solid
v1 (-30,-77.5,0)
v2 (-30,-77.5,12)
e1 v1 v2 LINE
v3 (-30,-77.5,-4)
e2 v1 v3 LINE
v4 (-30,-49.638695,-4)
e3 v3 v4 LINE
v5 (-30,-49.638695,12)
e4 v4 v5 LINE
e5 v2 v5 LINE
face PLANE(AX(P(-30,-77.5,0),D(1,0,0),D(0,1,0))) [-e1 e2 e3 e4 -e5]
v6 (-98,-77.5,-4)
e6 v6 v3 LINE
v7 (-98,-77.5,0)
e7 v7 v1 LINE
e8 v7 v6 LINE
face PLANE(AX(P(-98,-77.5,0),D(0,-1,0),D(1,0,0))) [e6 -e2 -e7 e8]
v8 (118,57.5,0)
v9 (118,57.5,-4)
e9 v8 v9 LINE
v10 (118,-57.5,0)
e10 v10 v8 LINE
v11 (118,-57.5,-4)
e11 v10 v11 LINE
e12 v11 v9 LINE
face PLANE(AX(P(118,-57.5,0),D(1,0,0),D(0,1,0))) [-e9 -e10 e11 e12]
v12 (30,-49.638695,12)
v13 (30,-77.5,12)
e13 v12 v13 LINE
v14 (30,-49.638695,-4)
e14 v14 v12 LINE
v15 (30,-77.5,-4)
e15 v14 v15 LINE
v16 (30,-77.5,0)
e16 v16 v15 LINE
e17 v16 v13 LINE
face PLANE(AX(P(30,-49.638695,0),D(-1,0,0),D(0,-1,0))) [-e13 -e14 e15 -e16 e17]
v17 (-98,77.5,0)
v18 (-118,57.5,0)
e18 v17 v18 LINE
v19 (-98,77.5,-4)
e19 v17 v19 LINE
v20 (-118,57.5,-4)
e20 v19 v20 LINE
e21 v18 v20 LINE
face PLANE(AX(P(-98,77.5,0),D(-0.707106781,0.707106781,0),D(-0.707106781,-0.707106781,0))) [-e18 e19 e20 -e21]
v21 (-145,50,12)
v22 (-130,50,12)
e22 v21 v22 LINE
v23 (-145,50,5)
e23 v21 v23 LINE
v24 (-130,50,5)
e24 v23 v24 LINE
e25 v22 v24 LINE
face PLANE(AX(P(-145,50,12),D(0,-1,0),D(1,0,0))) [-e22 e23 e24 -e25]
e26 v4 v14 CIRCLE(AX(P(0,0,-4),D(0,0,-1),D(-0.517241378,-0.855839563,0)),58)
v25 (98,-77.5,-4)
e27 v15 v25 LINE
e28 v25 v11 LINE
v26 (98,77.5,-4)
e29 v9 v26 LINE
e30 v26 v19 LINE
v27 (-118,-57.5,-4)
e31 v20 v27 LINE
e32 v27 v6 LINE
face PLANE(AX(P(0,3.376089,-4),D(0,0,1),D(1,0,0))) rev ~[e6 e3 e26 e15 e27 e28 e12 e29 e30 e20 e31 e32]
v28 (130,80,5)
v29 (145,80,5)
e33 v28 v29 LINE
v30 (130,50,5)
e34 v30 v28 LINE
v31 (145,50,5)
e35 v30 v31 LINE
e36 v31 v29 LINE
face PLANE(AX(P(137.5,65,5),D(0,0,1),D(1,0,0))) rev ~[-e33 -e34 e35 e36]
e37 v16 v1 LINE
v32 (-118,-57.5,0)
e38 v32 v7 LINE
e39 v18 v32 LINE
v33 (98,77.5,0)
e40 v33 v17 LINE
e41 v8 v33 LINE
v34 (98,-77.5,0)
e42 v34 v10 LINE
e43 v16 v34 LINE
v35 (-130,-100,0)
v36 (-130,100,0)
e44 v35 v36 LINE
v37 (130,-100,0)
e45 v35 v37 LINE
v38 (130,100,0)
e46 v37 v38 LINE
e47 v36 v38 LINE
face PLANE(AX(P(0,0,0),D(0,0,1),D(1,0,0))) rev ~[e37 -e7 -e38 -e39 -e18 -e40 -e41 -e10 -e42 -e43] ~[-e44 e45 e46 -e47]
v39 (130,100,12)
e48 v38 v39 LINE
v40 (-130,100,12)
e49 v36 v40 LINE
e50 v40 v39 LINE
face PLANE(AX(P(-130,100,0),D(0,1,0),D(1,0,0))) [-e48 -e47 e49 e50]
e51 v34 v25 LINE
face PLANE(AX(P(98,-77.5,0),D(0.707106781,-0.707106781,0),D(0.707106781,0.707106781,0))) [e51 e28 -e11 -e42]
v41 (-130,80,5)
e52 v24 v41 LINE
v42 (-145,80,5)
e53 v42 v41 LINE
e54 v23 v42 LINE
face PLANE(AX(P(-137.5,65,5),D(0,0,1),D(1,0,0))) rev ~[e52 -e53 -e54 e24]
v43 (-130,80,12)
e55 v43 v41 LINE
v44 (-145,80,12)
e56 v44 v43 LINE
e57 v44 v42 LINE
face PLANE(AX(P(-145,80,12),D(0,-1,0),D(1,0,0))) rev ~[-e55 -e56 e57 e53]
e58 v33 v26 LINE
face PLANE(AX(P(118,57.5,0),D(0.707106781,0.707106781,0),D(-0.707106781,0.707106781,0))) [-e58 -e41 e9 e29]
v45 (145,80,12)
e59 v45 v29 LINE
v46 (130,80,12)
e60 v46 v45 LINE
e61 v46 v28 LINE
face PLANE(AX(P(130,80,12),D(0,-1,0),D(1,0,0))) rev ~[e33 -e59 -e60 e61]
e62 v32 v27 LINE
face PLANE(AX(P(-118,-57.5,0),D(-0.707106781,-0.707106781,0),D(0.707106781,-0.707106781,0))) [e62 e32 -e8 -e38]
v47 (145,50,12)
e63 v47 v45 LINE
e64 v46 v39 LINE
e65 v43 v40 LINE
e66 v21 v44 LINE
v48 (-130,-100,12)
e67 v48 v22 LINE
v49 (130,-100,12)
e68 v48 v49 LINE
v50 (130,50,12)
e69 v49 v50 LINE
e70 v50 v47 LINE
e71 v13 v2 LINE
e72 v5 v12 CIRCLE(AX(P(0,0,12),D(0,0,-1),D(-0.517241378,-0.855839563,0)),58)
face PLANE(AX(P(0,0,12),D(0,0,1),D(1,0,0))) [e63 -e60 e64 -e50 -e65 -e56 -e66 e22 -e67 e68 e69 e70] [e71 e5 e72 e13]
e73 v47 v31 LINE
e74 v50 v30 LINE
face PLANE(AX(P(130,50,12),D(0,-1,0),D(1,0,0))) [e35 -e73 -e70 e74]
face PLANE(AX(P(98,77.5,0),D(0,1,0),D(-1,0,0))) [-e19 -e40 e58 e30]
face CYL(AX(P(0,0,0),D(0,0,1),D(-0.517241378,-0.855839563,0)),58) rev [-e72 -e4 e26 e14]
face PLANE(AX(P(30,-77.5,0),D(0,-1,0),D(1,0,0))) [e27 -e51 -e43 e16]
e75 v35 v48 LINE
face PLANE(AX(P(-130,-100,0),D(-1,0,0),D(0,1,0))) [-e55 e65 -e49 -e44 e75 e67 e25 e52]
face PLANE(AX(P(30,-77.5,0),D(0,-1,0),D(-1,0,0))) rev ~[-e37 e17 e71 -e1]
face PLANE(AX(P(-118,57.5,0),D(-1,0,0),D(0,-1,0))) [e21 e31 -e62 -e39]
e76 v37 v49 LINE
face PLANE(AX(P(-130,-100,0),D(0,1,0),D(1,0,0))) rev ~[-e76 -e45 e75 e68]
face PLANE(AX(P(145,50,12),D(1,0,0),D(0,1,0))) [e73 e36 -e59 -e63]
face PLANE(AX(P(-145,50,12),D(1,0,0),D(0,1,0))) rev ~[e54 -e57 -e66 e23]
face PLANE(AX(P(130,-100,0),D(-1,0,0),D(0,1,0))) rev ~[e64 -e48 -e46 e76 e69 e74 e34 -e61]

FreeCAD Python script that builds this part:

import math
import FreeCAD as App
import Part
import Sketcher
from FreeCAD import Vector


def add_polygon(sketch, points):
    """Adds a closed chain of lines whose ends are joined by coincident constraints."""
    first, n = sketch.GeometryCount, len(points)
    for a, b in zip(points, points[1:] + points[:1]):
        sketch.addGeometry(Part.LineSegment(App.Vector(*a, 0), App.Vector(*b, 0)), False)
    for i in range(n):
        sketch.addConstraint(Sketcher.Constraint("Coincident", first + i, 2, first + (i + 1) % n, 1))

doc = App.newDocument("Part")
body = doc.addObject("PartDesign::Body", "Body")

# Sketch on XY plane
sketch1 = body.newObject("Sketcher::SketchObject", "Sketch")
sketch1.AttachmentSupport = (doc.getObject("XY_Plane"), [""])
sketch1.MapMode = "FlatFace"
add_polygon(sketch1, [(-130, 100), (-130, -100), (130, -100), (130, 100)])  # lines 0-3
sketch1.addGeometry(Part.LineSegment(Vector(30, -77.5, 0), Vector(-30, -77.5, 0)), False)  # 4
sketch1.addGeometry(Part.LineSegment(Vector(-30, -77.5, 0), Vector(-30, -49.638695, 0)), False)  # 5
sketch1.addGeometry(Part.ArcOfCircle(Part.Circle(Vector(0, 0, 0), Vector(0, 0, 1), 58), math.radians(-58.85261), math.radians(238.85261)), False)  # 6
sketch1.addGeometry(Part.LineSegment(Vector(30, -49.638695, 0), Vector(30, -77.5, 0)), False)  # 7
sketch1.addConstraint([
    Sketcher.Constraint("Coincident", 4, 2, 5, 1),
    Sketcher.Constraint("Coincident", 5, 2, 6, 2),
    Sketcher.Constraint("Coincident", 6, 1, 7, 1),
    Sketcher.Constraint("Coincident", 7, 2, 4, 1),
    Sketcher.Constraint("Vertical", 0),
    Sketcher.Constraint("Horizontal", 1),
    Sketcher.Constraint("Vertical", 2),
    Sketcher.Constraint("Horizontal", 3),
    Sketcher.Constraint("Horizontal", 4),
    Sketcher.Constraint("Vertical", 5),
    Sketcher.Constraint("Vertical", 7),
    Sketcher.Constraint("Coincident", 6, 3, -1, 1),
    Sketcher.Constraint("Symmetric", 0, 2, 2, 2, -1, 1),
    Sketcher.Constraint("Horizontal", 5, 2, 6, 1),
    Sketcher.Constraint("Radius", 6, 58.0),
    Sketcher.Constraint("DistanceX", 1, 1, 1, 2, 260.0),
    Sketcher.Constraint("DistanceX", 4, 2, 4, 1, 60.0),
    Sketcher.Constraint("DistanceY", 0, 2, 0, 1, 200.0),
    Sketcher.Constraint("DistanceY", 4, 2, -1, 1, 77.5),
])
pad1 = body.newObject("PartDesign::Pad", "Pad")
pad1.Profile = sketch1
pad1.Length = 12

# Sketch on XY plane
sketch2 = body.newObject("Sketcher::SketchObject", "Sketch001")
sketch2.AttachmentSupport = (doc.getObject("XY_Plane"), [""])
sketch2.MapMode = "FlatFace"
sketch2.addGeometry([
    Part.LineSegment(Vector(118, 57.5, 0), Vector(98, 77.5, 0)),  # 0
    Part.LineSegment(Vector(98, 77.5, 0), Vector(-98, 77.5, 0)),  # 1
    Part.LineSegment(Vector(-98, 77.5, 0), Vector(-118, 57.5, 0)),  # 2
    Part.LineSegment(Vector(-118, 57.5, 0), Vector(-118, -57.5, 0)),  # 3
    Part.LineSegment(Vector(-118, -57.5, 0), Vector(-98, -77.5, 0)),  # 4
    Part.LineSegment(Vector(-98, -77.5, 0), Vector(-30, -77.5, 0)),  # 5
    Part.LineSegment(Vector(-30, -77.5, 0), Vector(-30, -49.638695, 0)),  # 6
    Part.ArcOfCircle(Part.Circle(Vector(0, 0, 0), Vector(0, 0, 1), 58), math.radians(-58.85261), math.radians(238.85261)),  # 7
    Part.LineSegment(Vector(30, -49.638695, 0), Vector(30, -77.5, 0)),  # 8
    Part.LineSegment(Vector(30, -77.5, 0), Vector(98, -77.5, 0)),  # 9
    Part.LineSegment(Vector(98, -77.5, 0), Vector(118, -57.5, 0)),  # 10
    Part.LineSegment(Vector(118, -57.5, 0), Vector(118, 57.5, 0)),  # 11
], False)
sketch2.addConstraint([
    Sketcher.Constraint("Coincident", 0, 2, 1, 1),
    Sketcher.Constraint("Coincident", 1, 2, 2, 1),
    Sketcher.Constraint("Coincident", 2, 2, 3, 1),
    Sketcher.Constraint("Coincident", 3, 2, 4, 1),
    Sketcher.Constraint("Coincident", 4, 2, 5, 1),
    Sketcher.Constraint("Coincident", 5, 2, 6, 1),
    Sketcher.Constraint("Coincident", 6, 2, 7, 2),
    Sketcher.Constraint("Coincident", 7, 1, 8, 1),
    Sketcher.Constraint("Coincident", 8, 2, 9, 1),
    Sketcher.Constraint("Coincident", 9, 2, 10, 1),
    Sketcher.Constraint("Coincident", 10, 2, 11, 1),
    Sketcher.Constraint("Coincident", 11, 2, 0, 1),
    Sketcher.Constraint("Horizontal", 1),
    Sketcher.Constraint("Vertical", 3),
    Sketcher.Constraint("Horizontal", 5),
    Sketcher.Constraint("Vertical", 6),
    Sketcher.Constraint("Vertical", 8),
    Sketcher.Constraint("Horizontal", 9),
    Sketcher.Constraint("Vertical", 11),
    Sketcher.Constraint("Coincident", 7, 3, -1, 1),
    Sketcher.Constraint("Symmetric", 0, 2, 4, 2, -1, 1),
    Sketcher.Constraint("Symmetric", 1, 2, 9, 2, -1, 1),
    Sketcher.Constraint("Symmetric", 2, 2, 10, 2, -1, 1),
    Sketcher.Constraint("Perpendicular", 0, 2),
    Sketcher.Constraint("Perpendicular", 2, 4),
    Sketcher.Constraint("Horizontal", 6, 2, 7, 1),
    Sketcher.Constraint("Horizontal", 3, 2, 10, 2),
    Sketcher.Constraint("Vertical", 1, 2, 4, 2),
    Sketcher.Constraint("Radius", 7, 58.0),
    Sketcher.Constraint("DistanceX", 1, 2, 1, 1, 196.0),
    Sketcher.Constraint("DistanceX", 5, 1, 5, 2, 68.0),
    Sketcher.Constraint("DistanceY", 3, 2, 3, 1, 115.0),
    Sketcher.Constraint("DistanceX", 2, 2, -1, 1, 118.0),
])
pad2 = body.newObject("PartDesign::Pad", "Pad001")
pad2.Profile = sketch2
pad2.Length = 4
pad2.Reversed = True

# Sketch on XY plane
sketch3 = body.newObject("Sketcher::SketchObject", "Sketch002")
sketch3.AttachmentSupport = (doc.getObject("XY_Plane"), [""])
sketch3.MapMode = "FlatFace"
sketch3.AttachmentOffset = App.Placement(Vector(0, 0, 12), App.Rotation())
add_polygon(sketch3, [(-145, 80), (-145, 50), (-130, 50), (-130, 80)])  # lines 0-3
add_polygon(sketch3, [(130, 80), (130, 50), (145, 50), (145, 80)])  # lines 4-7
sketch3.addConstraint([
    Sketcher.Constraint("Vertical", 0),
    Sketcher.Constraint("Horizontal", 1),
    Sketcher.Constraint("Vertical", 2),
    Sketcher.Constraint("Horizontal", 3),
    Sketcher.Constraint("Vertical", 4),
    Sketcher.Constraint("Horizontal", 5),
    Sketcher.Constraint("Vertical", 6),
    Sketcher.Constraint("Horizontal", 7),
    Sketcher.Constraint("Symmetric", 1, 2, 4, 2, -2),
    Sketcher.Constraint("Symmetric", 3, 2, 6, 2, -2),
    Sketcher.Constraint("DistanceX", 1, 1, 1, 2, 15.0),
    Sketcher.Constraint("DistanceY", 0, 2, 0, 1, 30.0),
    Sketcher.Constraint("DistanceX", 0, 2, -1, 1, 145.0),
    Sketcher.Constraint("DistanceY", -1, 1, 0, 2, 50.0),
])
pad3 = body.newObject("PartDesign::Pad", "Pad002")
pad3.Profile = sketch3
pad3.Length = 7
pad3.Reversed = True

doc.recompute()
